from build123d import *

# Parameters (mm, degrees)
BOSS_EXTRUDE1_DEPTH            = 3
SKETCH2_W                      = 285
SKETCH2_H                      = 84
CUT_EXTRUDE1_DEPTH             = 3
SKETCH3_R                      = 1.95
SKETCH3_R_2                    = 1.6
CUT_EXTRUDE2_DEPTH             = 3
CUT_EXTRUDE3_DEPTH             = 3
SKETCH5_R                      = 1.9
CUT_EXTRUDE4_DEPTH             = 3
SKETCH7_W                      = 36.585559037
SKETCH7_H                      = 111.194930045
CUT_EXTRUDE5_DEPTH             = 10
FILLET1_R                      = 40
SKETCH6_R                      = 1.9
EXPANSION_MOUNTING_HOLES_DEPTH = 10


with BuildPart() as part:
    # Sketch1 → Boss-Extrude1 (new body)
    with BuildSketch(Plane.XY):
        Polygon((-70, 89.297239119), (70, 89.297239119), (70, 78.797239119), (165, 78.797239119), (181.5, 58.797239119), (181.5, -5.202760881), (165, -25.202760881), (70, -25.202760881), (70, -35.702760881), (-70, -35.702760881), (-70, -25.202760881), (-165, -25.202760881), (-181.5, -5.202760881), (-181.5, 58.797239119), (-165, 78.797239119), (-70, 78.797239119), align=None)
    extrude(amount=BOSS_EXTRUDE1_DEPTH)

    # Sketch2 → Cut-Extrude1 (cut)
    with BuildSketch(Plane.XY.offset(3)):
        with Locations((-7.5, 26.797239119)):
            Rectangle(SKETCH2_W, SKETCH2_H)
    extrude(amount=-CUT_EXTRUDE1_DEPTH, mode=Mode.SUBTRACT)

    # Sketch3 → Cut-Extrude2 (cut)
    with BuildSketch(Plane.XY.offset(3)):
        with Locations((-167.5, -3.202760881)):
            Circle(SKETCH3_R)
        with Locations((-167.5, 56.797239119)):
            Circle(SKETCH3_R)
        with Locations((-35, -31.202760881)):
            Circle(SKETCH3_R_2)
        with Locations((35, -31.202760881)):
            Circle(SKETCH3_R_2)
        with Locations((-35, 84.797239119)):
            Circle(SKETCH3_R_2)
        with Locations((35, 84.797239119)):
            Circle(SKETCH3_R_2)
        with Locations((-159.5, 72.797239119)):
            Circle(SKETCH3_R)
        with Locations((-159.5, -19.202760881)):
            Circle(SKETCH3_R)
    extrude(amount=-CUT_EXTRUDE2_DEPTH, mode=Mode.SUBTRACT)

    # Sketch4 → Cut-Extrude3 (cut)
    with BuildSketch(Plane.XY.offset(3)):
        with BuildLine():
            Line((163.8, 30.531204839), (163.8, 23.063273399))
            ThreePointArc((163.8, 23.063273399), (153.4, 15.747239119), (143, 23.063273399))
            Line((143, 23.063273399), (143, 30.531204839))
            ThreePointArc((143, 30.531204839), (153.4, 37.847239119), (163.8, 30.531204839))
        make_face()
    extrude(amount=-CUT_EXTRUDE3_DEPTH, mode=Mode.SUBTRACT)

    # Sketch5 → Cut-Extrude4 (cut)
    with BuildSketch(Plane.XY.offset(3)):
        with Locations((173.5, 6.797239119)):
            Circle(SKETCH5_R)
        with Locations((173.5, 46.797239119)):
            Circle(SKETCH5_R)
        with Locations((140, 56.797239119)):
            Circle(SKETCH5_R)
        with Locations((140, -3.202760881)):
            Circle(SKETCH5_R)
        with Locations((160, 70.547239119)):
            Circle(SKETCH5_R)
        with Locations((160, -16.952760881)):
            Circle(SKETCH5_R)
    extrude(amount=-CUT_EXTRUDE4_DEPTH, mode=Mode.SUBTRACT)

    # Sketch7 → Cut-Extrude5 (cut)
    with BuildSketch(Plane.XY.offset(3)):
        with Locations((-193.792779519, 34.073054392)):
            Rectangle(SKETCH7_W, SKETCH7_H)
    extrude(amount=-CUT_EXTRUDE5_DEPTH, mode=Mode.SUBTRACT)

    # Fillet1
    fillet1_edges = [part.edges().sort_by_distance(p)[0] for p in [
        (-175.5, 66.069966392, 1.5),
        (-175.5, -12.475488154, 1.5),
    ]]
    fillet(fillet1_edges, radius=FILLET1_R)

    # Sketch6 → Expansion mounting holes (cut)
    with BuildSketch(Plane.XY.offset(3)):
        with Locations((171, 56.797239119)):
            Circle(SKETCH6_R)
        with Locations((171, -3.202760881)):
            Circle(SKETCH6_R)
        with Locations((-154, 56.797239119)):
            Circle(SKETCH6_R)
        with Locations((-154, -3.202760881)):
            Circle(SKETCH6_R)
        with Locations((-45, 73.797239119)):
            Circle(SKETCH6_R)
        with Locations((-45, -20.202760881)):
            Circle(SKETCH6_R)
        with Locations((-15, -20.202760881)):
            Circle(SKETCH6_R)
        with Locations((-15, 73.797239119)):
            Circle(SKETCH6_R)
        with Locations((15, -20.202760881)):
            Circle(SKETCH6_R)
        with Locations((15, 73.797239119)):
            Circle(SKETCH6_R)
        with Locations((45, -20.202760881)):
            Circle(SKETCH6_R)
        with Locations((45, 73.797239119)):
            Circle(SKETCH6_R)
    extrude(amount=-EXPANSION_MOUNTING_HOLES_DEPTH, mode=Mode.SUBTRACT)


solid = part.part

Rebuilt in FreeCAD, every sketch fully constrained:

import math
import FreeCAD as App
import Part
import Sketcher
Q = App.Units.Quantity


def edges_at(feature, points):
    """Names of the edges that pass closest to the given points."""
    edges = feature.Shape.Edges
    near = lambda p: min(range(len(edges)), key=lambda i: edges[i].distToShape(Part.Vertex(*p))[0])
    return sorted({f"Edge{near(p) + 1}" for p in points})

doc = App.newDocument("Part")
body = doc.addObject("PartDesign::Body", "Body")

# Sketch on XY plane
sketch1 = body.newObject("Sketcher::SketchObject", "Sketch")
sketch1.AttachmentSupport = (doc.getObject("XY_Plane"), [""])
sketch1.MapMode = "FlatFace"
sketch1.addGeometry(Part.LineSegment(App.Vector(70, 89, 0), App.Vector(-70, 89, 0)), False)
sketch1.addGeometry(Part.LineSegment(App.Vector(-70, 89, 0), App.Vector(-70, 79, 0)), False)
sketch1.addGeometry(Part.LineSegment(App.Vector(-70, 79, 0), App.Vector(-165, 79, 0)), False)
sketch1.addGeometry(Part.LineSegment(App.Vector(-165, 79, 0), App.Vector(-182, 59, 0)), False)
sketch1.addGeometry(Part.LineSegment(App.Vector(-182, 59, 0), App.Vector(-182, -5, 0)), False)
sketch1.addGeometry(Part.LineSegment(App.Vector(-182, -5, 0), App.Vector(-165, -25, 0)), False)
sketch1.addGeometry(Part.LineSegment(App.Vector(-165, -25, 0), App.Vector(-70, -25, 0)), False)
sketch1.addGeometry(Part.LineSegment(App.Vector(-70, -25, 0), App.Vector(-70, -36, 0)), False)
sketch1.addGeometry(Part.LineSegment(App.Vector(-70, -36, 0), App.Vector(70, -36, 0)), False)
sketch1.addGeometry(Part.LineSegment(App.Vector(70, -36, 0), App.Vector(70, -25, 0)), False)
sketch1.addGeometry(Part.LineSegment(App.Vector(70, -25, 0), App.Vector(165, -25, 0)), False)
sketch1.addGeometry(Part.LineSegment(App.Vector(165, -25, 0), App.Vector(182, -5, 0)), False)
sketch1.addGeometry(Part.LineSegment(App.Vector(182, -5, 0), App.Vector(182, 59, 0)), False)
sketch1.addGeometry(Part.LineSegment(App.Vector(182, 59, 0), App.Vector(165, 79, 0)), False)
sketch1.addGeometry(Part.LineSegment(App.Vector(165, 79, 0), App.Vector(70, 79, 0)), False)
sketch1.addGeometry(Part.LineSegment(App.Vector(70, 79, 0), App.Vector(70, 89, 0)), False)
sketch1.addConstraint(Sketcher.Constraint("Coincident", 0, 2, 1, 1))
sketch1.addConstraint(Sketcher.Constraint("Coincident", 1, 2, 2, 1))
sketch1.addConstraint(Sketcher.Constraint("Coincident", 2, 2, 3, 1))
sketch1.addConstraint(Sketcher.Constraint("Coincident", 3, 2, 4, 1))
sketch1.addConstraint(Sketcher.Constraint("Coincident", 4, 2, 5, 1))
sketch1.addConstraint(Sketcher.Constraint("Coincident", 5, 2, 6, 1))
sketch1.addConstraint(Sketcher.Constraint("Coincident", 6, 2, 7, 1))
sketch1.addConstraint(Sketcher.Constraint("Coincident", 7, 2, 8, 1))
sketch1.addConstraint(Sketcher.Constraint("Coincident", 8, 2, 9, 1))
sketch1.addConstraint(Sketcher.Constraint("Coincident", 9, 2, 10, 1))
sketch1.addConstraint(Sketcher.Constraint("Coincident", 10, 2, 11, 1))
sketch1.addConstraint(Sketcher.Constraint("Coincident", 11, 2, 12, 1))
sketch1.addConstraint(Sketcher.Constraint("Coincident", 12, 2, 13, 1))
sketch1.addConstraint(Sketcher.Constraint("Coincident", 13, 2, 14, 1))
sketch1.addConstraint(Sketcher.Constraint("Coincident", 14, 2, 15, 1))
sketch1.addConstraint(Sketcher.Constraint("Coincident", 15, 2, 0, 1))
sketch1.addConstraint(Sketcher.Constraint("Horizontal", 0))
sketch1.addConstraint(Sketcher.Constraint("Vertical", 1))
sketch1.addConstraint(Sketcher.Constraint("Horizontal", 2))
sketch1.addConstraint(Sketcher.Constraint("Vertical", 4))
sketch1.addConstraint(Sketcher.Constraint("Horizontal", 6))
sketch1.addConstraint(Sketcher.Constraint("Vertical", 7))
sketch1.addConstraint(Sketcher.Constraint("Horizontal", 8))
sketch1.addConstraint(Sketcher.Constraint("Vertical", 9))
sketch1.addConstraint(Sketcher.Constraint("Horizontal", 10))
sketch1.addConstraint(Sketcher.Constraint("Vertical", 12))
sketch1.addConstraint(Sketcher.Constraint("Horizontal", 14))
sketch1.addConstraint(Sketcher.Constraint("Vertical", 15))
sketch1.addConstraint(Sketcher.Constraint("Symmetric", 6, 2, 9, 2, -2))
sketch1.addConstraint(Sketcher.Constraint("Symmetric", 4, 2, 11, 2, -2))
sketch1.addConstraint(Sketcher.Constraint("Symmetric", 2, 2, 13, 2, -2))
sketch1.addConstraint(Sketcher.Constraint("Parallel", 3, 11))
sketch1.addConstraint(Sketcher.Constraint("Parallel", 5, 13))
sketch1.addConstraint(Sketcher.Constraint("Horizontal", 3, 2, 12, 2))
sketch1.addConstraint(Sketcher.Constraint("Vertical", 2, 2, 5, 2))
sketch1.addConstraint(Sketcher.Constraint("Vertical", 1, 2, 6, 2))
sketch1.addConstraint(Sketcher.Constraint("Vertical", 9, 2, 14, 2))
sketch1.addConstraint(Sketcher.Constraint("Equal", 1, 7))
sketch1.addConstraint(Sketcher.Constraint("DistanceX", 0, 2, 0, 1, Q("140 mm")))
sketch1.addConstraint(Sketcher.Constraint("DistanceX", 2, 2, 2, 1, Q("95 mm")))
sketch1.addConstraint(Sketcher.Constraint("DistanceY", 4, 2, 4, 1, Q("64 mm")))
sketch1.addConstraint(Sketcher.Constraint("DistanceY", 1, 2, 1, 1, Q("10.5 mm")))
sketch1.addConstraint(Sketcher.Constraint("DistanceY", 3, 2, 2, 2, Q("20 mm")))
sketch1.addConstraint(Sketcher.Constraint("DistanceX", 3, 2, -1, 1, Q("181.5 mm")))
sketch1.addConstraint(Sketcher.Constraint("DistanceY", -1, 1, 0, 2, Q("89.297239 mm")))
pad1 = body.newObject("PartDesign::Pad", "Pad")
pad1.Profile = sketch1
pad1.Length = 3

# Sketch on XY plane
sketch2 = body.newObject("Sketcher::SketchObject", "Sketch001")
sketch2.AttachmentSupport = (doc.getObject("XY_Plane"), [""])
sketch2.MapMode = "FlatFace"
sketch2.AttachmentOffset = App.Placement(App.Vector(0, 0, 3), App.Rotation())
sketch2.addGeometry(Part.LineSegment(App.Vector(-150, 69, 0), App.Vector(-150, -15, 0)), False)
sketch2.addGeometry(Part.LineSegment(App.Vector(-150, -15, 0), App.Vector(135, -15, 0)), False)
sketch2.addGeometry(Part.LineSegment(App.Vector(135, -15, 0), App.Vector(135, 69, 0)), False)
sketch2.addGeometry(Part.LineSegment(App.Vector(135, 69, 0), App.Vector(-150, 69, 0)), False)
sketch2.addConstraint(Sketcher.Constraint("Coincident", 0, 2, 1, 1))
sketch2.addConstraint(Sketcher.Constraint("Coincident", 1, 2, 2, 1))
sketch2.addConstraint(Sketcher.Constraint("Coincident", 2, 2, 3, 1))
sketch2.addConstraint(Sketcher.Constraint("Coincident", 3, 2, 0, 1))
sketch2.addConstraint(Sketcher.Constraint("Vertical", 0))
sketch2.addConstraint(Sketcher.Constraint("Horizontal", 1))
sketch2.addConstraint(Sketcher.Constraint("Vertical", 2))
sketch2.addConstraint(Sketcher.Constraint("Horizontal", 3))
sketch2.addConstraint(Sketcher.Constraint("DistanceX", 1, 1, 1, 2, Q("285 mm")))
sketch2.addConstraint(Sketcher.Constraint("DistanceY", 0, 2, 0, 1, Q("84 mm")))
sketch2.addConstraint(Sketcher.Constraint("DistanceX", 0, 2, -1, 1, Q("150 mm")))
sketch2.addConstraint(Sketcher.Constraint("DistanceY", 0, 2, -1, 1, Q("15.202761 mm")))
pocket1 = body.newObject("PartDesign::Pocket", "Pocket")
pocket1.Profile = sketch2
pocket1.Length = 3

# Sketch on XY plane
sketch3 = body.newObject("Sketcher::SketchObject", "Sketch002")
sketch3.AttachmentSupport = (doc.getObject("XY_Plane"), [""])
sketch3.MapMode = "FlatFace"
sketch3.AttachmentOffset = App.Placement(App.Vector(0, 0, 3), App.Rotation())
sketch3.addGeometry(Part.Circle(App.Vector(-167.5, -3.2, 0), App.Vector(0, 0, 1), 1.9), False)
sketch3.addGeometry(Part.Circle(App.Vector(-167.5, 56.8, 0), App.Vector(0, 0, 1), 1.9), False)
sketch3.addGeometry(Part.Circle(App.Vector(-35, -31.2, 0), App.Vector(0, 0, 1), 1.6), False)
sketch3.addGeometry(Part.Circle(App.Vector(35, -31.2, 0), App.Vector(0, 0, 1), 1.6), False)
sketch3.addGeometry(Part.Circle(App.Vector(-35, 84.8, 0), App.Vector(0, 0, 1), 1.6), False)
sketch3.addGeometry(Part.Circle(App.Vector(35, 84.8, 0), App.Vector(0, 0, 1), 1.6), False)
sketch3.addGeometry(Part.Circle(App.Vector(-159.5, 72.8, 0), App.Vector(0, 0, 1), 1.9), False)
sketch3.addGeometry(Part.Circle(App.Vector(-159.5, -19.2, 0), App.Vector(0, 0, 1), 1.9), False)
sketch3.addConstraint(Sketcher.Constraint("Equal", 0, 1))
sketch3.addConstraint(Sketcher.Constraint("Equal", 2, 3))
sketch3.addConstraint(Sketcher.Constraint("Equal", 3, 4))
sketch3.addConstraint(Sketcher.Constraint("Equal", 4, 5))
sketch3.addConstraint(Sketcher.Constraint("Equal", 1, 6))
sketch3.addConstraint(Sketcher.Constraint("Equal", 6, 7))
sketch3.addConstraint(Sketcher.Constraint("Symmetric", 2, 3, 3, 3, -2))
sketch3.addConstraint(Sketcher.Constraint("Symmetric", 4, 3, 5, 3, -2))
sketch3.addConstraint(Sketcher.Constraint("Vertical", 0, 3, 1, 3))
sketch3.addConstraint(Sketcher.Constraint("Vertical", 2, 3, 4, 3))
sketch3.addConstraint(Sketcher.Constraint("Vertical", 6, 3, 7, 3))
sketch3.addConstraint(Sketcher.Constraint("Diameter", 0, Q("3.9 mm")))
sketch3.addConstraint(Sketcher.Constraint("Diameter", 2, Q("3.2 mm")))
sketch3.addConstraint(Sketcher.Constraint("DistanceX", 2, 3, -1, 1, Q("35 mm")))
sketch3.addConstraint(Sketcher.Constraint("DistanceY", 0, 3, 1, 3, Q("60 mm")))
sketch3.addConstraint(Sketcher.Constraint("DistanceY", 2, 3, 0, 3, Q("28 mm")))
sketch3.addConstraint(Sketcher.Constraint("DistanceY", 2, 3, 4, 3, Q("116 mm")))
sketch3.addConstraint(Sketcher.Constraint("DistanceX", 1, 3, 6, 3, Q("8 mm")))
sketch3.addConstraint(Sketcher.Constraint("DistanceY", 1, 3, 6, 3, Q("16 mm")))
sketch3.addConstraint(Sketcher.Constraint("DistanceY", 7, 3, 0, 3, Q("16 mm")))
sketch3.addConstraint(Sketcher.Constraint("DistanceX", 0, 3, -1, 1, Q("167.5 mm")))
sketch3.addConstraint(Sketcher.Constraint("DistanceY", 0, 3, -1, 1, Q("3.202761 mm")))
pocket2 = body.newObject("PartDesign::Pocket", "Pocket001")
pocket2.Profile = sketch3
pocket2.Length = 3

# Sketch on XY plane
sketch4 = body.newObject("Sketcher::SketchObject", "Sketch003")
sketch4.AttachmentSupport = (doc.getObject("XY_Plane"), [""])
sketch4.MapMode = "FlatFace"
sketch4.AttachmentOffset = App.Placement(App.Vector(0, 0, 3), App.Rotation())
sketch4.addGeometry(Part.LineSegment(App.Vector(164, 23, 0), App.Vector(164, 31, 0)), False)
sketch4.addGeometry(Part.ArcOfCircle(Part.Circle(App.Vector(153, 27, 0), App.Vector(0, 0, 1), 11), math.radians(20), math.radians(160)), False)
sketch4.addGeometry(Part.LineSegment(App.Vector(143, 31, 0), App.Vector(143, 23, 0)), False)
sketch4.addGeometry(Part.ArcOfCircle(Part.Circle(App.Vector(153, 27, 0), App.Vector(0, 0, 1), 11), math.radians(-160), math.radians(-20)), False)
sketch4.addConstraint(Sketcher.Constraint("Coincident", 0, 2, 1, 1))
sketch4.addConstraint(Sketcher.Constraint("Coincident", 1, 2, 2, 1))
sketch4.addConstraint(Sketcher.Constraint("Coincident", 2, 2, 3, 1))
sketch4.addConstraint(Sketcher.Constraint("Coincident", 3, 2, 0, 1))
sketch4.addConstraint(Sketcher.Constraint("Vertical", 0))
sketch4.addConstraint(Sketcher.Constraint("Vertical", 2))
sketch4.addConstraint(Sketcher.Constraint("Coincident", 3, 3, 1, 3))
sketch4.addConstraint(Sketcher.Constraint("Equal", 1, 3))
sketch4.addConstraint(Sketcher.Constraint("Horizontal", 0, 2, 1, 2))
sketch4.addConstraint(Sketcher.Constraint("Radius", 1, Q("11.05 mm")))
sketch4.addConstraint(Sketcher.Constraint("DistanceX", -1, 1, 1, 2, Q("143 mm")))
sketch4.addConstraint(Sketcher.Constraint("DistanceX", -1, 1, 1, 3, Q("153.4 mm")))
sketch4.addConstraint(Sketcher.Constraint("DistanceY", -1, 1, 1, 3, Q("26.797239 mm")))
pocket3 = body.newObject("PartDesign::Pocket", "Pocket002")
pocket3.Profile = sketch4
pocket3.Length = 3

# Sketch on XY plane
sketch5 = body.newObject("Sketcher::SketchObject", "Sketch004")
sketch5.AttachmentSupport = (doc.getObject("XY_Plane"), [""])
sketch5.MapMode = "FlatFace"
sketch5.AttachmentOffset = App.Placement(App.Vector(0, 0, 3), App.Rotation())
sketch5.addGeometry(Part.Circle(App.Vector(173.5, 6.8, 0), App.Vector(0, 0, 1), 1.9), False)
sketch5.addGeometry(Part.Circle(App.Vector(173.5, 46.8, 0), App.Vector(0, 0, 1), 1.9), False)
sketch5.addGeometry(Part.Circle(App.Vector(140, 56.8, 0), App.Vector(0, 0, 1), 1.9), False)
sketch5.addGeometry(Part.Circle(App.Vector(140, -3.2, 0), App.Vector(0, 0, 1), 1.9), False)
sketch5.addGeometry(Part.Circle(App.Vector(160, 70.5, 0), App.Vector(0, 0, 1), 1.9), False)
sketch5.addGeometry(Part.Circle(App.Vector(160, -17, 0), App.Vector(0, 0, 1), 1.9), False)
sketch5.addConstraint(Sketcher.Constraint("Equal", 0, 1))
sketch5.addConstraint(Sketcher.Constraint("Equal", 1, 2))
sketch5.addConstraint(Sketcher.Constraint("Equal", 2, 3))
sketch5.addConstraint(Sketcher.Constraint("Equal", 3, 4))
sketch5.addConstraint(Sketcher.Constraint("Equal", 4, 5))
sketch5.addConstraint(Sketcher.Constraint("Vertical", 0, 3, 1, 3))
sketch5.addConstraint(Sketcher.Constraint("Vertical", 2, 3, 3, 3))
sketch5.addConstraint(Sketcher.Constraint("Vertical", 4, 3, 5, 3))
sketch5.addConstraint(Sketcher.Constraint("Diameter", 0, Q("3.8 mm")))
sketch5.addConstraint(Sketcher.Constraint("DistanceX", -1, 1, 2, 3, Q("140 mm")))
sketch5.addConstraint(Sketcher.Constraint("DistanceX", -1, 1, 4, 3, Q("160 mm")))
sketch5.addConstraint(Sketcher.Constraint("DistanceY", 0, 3, 1, 3, Q("40 mm")))
sketch5.addConstraint(Sketcher.Constraint("DistanceY", 1, 3, 2, 3, Q("10 mm")))
sketch5.addConstraint(Sketcher.Constraint("DistanceY", 3, 3, 0, 3, Q("10 mm")))
sketch5.addConstraint(Sketcher.Constraint("DistanceX", -1, 1, 0, 3, Q("173.5 mm")))
sketch5.addConstraint(Sketcher.Constraint("DistanceY", 5, 3, 4, 3, Q("87.5 mm")))
sketch5.addConstraint(Sketcher.Constraint("DistanceY", 2, 3, 4, 3, Q("13.75 mm")))
sketch5.addConstraint(Sketcher.Constraint("DistanceY", -1, 1, 0, 3, Q("6.797239 mm")))
pocket4 = body.newObject("PartDesign::Pocket", "Pocket003")
pocket4.Profile = sketch5
pocket4.Length = 3

# Sketch on XY plane
sketch6 = body.newObject("Sketcher::SketchObject", "Sketch005")
sketch6.AttachmentSupport = (doc.getObject("XY_Plane"), [""])
sketch6.MapMode = "FlatFace"
sketch6.AttachmentOffset = App.Placement(App.Vector(0, 0, 3), App.Rotation())
sketch6.addGeometry(Part.LineSegment(App.Vector(-212, 90, 0), App.Vector(-212, -22, 0)), False)
sketch6.addGeometry(Part.LineSegment(App.Vector(-212, -22, 0), App.Vector(-176, -22, 0)), False)
sketch6.addGeometry(Part.LineSegment(App.Vector(-176, -22, 0), App.Vector(-176, 90, 0)), False)
sketch6.addGeometry(Part.LineSegment(App.Vector(-176, 90, 0), App.Vector(-212, 90, 0)), False)
sketch6.addConstraint(Sketcher.Constraint("Coincident", 0, 2, 1, 1))
sketch6.addConstraint(Sketcher.Constraint("Coincident", 1, 2, 2, 1))
sketch6.addConstraint(Sketcher.Constraint("Coincident", 2, 2, 3, 1))
sketch6.addConstraint(Sketcher.Constraint("Coincident", 3, 2, 0, 1))
sketch6.addConstraint(Sketcher.Constraint("Vertical", 0))
sketch6.addConstraint(Sketcher.Constraint("Horizontal", 1))
sketch6.addConstraint(Sketcher.Constraint("Vertical", 2))
sketch6.addConstraint(Sketcher.Constraint("Horizontal", 3))
sketch6.addConstraint(Sketcher.Constraint("DistanceX", 1, 2, -1, 1, Q("175.5 mm")))
sketch6.addConstraint(Sketcher.Constraint("DistanceX", 1, 1, 1, 2, Q("36.585559 mm")))
sketch6.addConstraint(Sketcher.Constraint("DistanceY", 0, 2, 0, 1, Q("111.19493 mm")))
sketch6.addConstraint(Sketcher.Constraint("DistanceY", 0, 2, -1, 1, Q("21.524411 mm")))
pocket5 = body.newObject("PartDesign::Pocket", "Pocket004")
pocket5.Profile = sketch6
pocket5.Length = 10
doc.recompute()

fillet = body.newObject("PartDesign::Fillet", "Fillet")
fillet.Base = (pocket5, edges_at(pocket5, [(-175.5, 66.07, 1.5), (-175.5, -12.475, 1.5)]))
fillet.Radius = 40

# Sketch on XY plane
sketch7 = body.newObject("Sketcher::SketchObject", "Sketch006")
sketch7.AttachmentSupport = (doc.getObject("XY_Plane"), [""])
sketch7.MapMode = "FlatFace"
sketch7.AttachmentOffset = App.Placement(App.Vector(0, 0, 3), App.Rotation())
sketch7.addGeometry(Part.Circle(App.Vector(171, 56.8, 0), App.Vector(0, 0, 1), 1.9), False)
sketch7.addGeometry(Part.Circle(App.Vector(171, -3.2, 0), App.Vector(0, 0, 1), 1.9), False)
sketch7.addGeometry(Part.Circle(App.Vector(-154, 56.8, 0), App.Vector(0, 0, 1), 1.9), False)
sketch7.addGeometry(Part.Circle(App.Vector(-154, -3.2, 0), App.Vector(0, 0, 1), 1.9), False)
sketch7.addGeometry(Part.Circle(App.Vector(-45, 73.8, 0), App.Vector(0, 0, 1), 1.9), False)
sketch7.addGeometry(Part.Circle(App.Vector(-45, -20.2, 0), App.Vector(0, 0, 1), 1.9), False)
sketch7.addGeometry(Part.Circle(App.Vector(-15, -20.2, 0), App.Vector(0, 0, 1), 1.9), False)
sketch7.addGeometry(Part.Circle(App.Vector(-15, 73.8, 0), App.Vector(0, 0, 1), 1.9), False)
sketch7.addGeometry(Part.Circle(App.Vector(15, -20.2, 0), App.Vector(0, 0, 1), 1.9), False)
sketch7.addGeometry(Part.Circle(App.Vector(15, 73.8, 0), App.Vector(0, 0, 1), 1.9), False)
sketch7.addGeometry(Part.Circle(App.Vector(45, -20.2, 0), App.Vector(0, 0, 1), 1.9), False)
sketch7.addGeometry(Part.Circle(App.Vector(45, 73.8, 0), App.Vector(0, 0, 1), 1.9), False)
sketch7.addConstraint(Sketcher.Constraint("Equal", 0, 1))
sketch7.addConstraint(Sketcher.Constraint("Equal", 1, 2))
sketch7.addConstraint(Sketcher.Constraint("Equal", 2, 3))
sketch7.addConstraint(Sketcher.Constraint("Equal", 3, 4))
sketch7.addConstraint(Sketcher.Constraint("Equal", 4, 5))
sketch7.addConstraint(Sketcher.Constraint("Equal", 5, 6))
sketch7.addConstraint(Sketcher.Constraint("Equal", 6, 7))
sketch7.addConstraint(Sketcher.Constraint("Equal", 7, 8))
sketch7.addConstraint(Sketcher.Constraint("Equal", 8, 9))
sketch7.addConstraint(Sketcher.Constraint("Equal", 9, 10))
sketch7.addConstraint(Sketcher.Constraint("Equal", 10, 11))
sketch7.addConstraint(Sketcher.Constraint("Symmetric", 6, 3, 8, 3, -2))
sketch7.addConstraint(Sketcher.Constraint("Symmetric", 7, 3, 9, 3, -2))
sketch7.addConstraint(Sketcher.Constraint("Symmetric", 5, 3, 10, 3, -2))
sketch7.addConstraint(Sketcher.Constraint("Symmetric", 4, 3, 11, 3, -2))
sketch7.addConstraint(Sketcher.Constraint("Horizontal", 0, 3, 2, 3))
sketch7.addConstraint(Sketcher.Constraint("Horizontal", 1, 3, 3, 3))
sketch7.addConstraint(Sketcher.Constraint("Horizontal", 5, 3, 6, 3))
sketch7.addConstraint(Sketcher.Constraint("Horizontal", 4, 3, 7, 3))
sketch7.addConstraint(Sketcher.Constraint("Vertical", 0, 3, 1, 3))
sketch7.addConstraint(Sketcher.Constraint("Vertical", 2, 3, 3, 3))
sketch7.addConstraint(Sketcher.Constraint("Vertical", 4, 3, 5, 3))
sketch7.addConstraint(Sketcher.Constraint("Vertical", 6, 3, 7, 3))
sketch7.addConstraint(Sketcher.Constraint("Diameter", 0, Q("3.8 mm")))
sketch7.addConstraint(Sketcher.Constraint("DistanceX", -1, 1, 0, 3, Q("171 mm")))
sketch7.addConstraint(Sketcher.Constraint("DistanceX", 2, 3, -1, 1, Q("154 mm")))
sketch7.addConstraint(Sketcher.Constraint("DistanceX", 4, 3, -1, 1, Q("45 mm")))
sketch7.addConstraint(Sketcher.Constraint("DistanceX", 6, 3, -1, 1, Q("15 mm")))
sketch7.addConstraint(Sketcher.Constraint("DistanceY", 1, 3, 0, 3, Q("60 mm")))
sketch7.addConstraint(Sketcher.Constraint("DistanceY", 2, 3, 4, 3, Q("17 mm")))
sketch7.addConstraint(Sketcher.Constraint("DistanceY", 5, 3, 4, 3, Q("94 mm")))
sketch7.addConstraint(Sketcher.Constraint("DistanceY", -1, 1, 0, 3, Q("56.797239 mm")))
pocket6 = body.newObject("PartDesign::Pocket", "Pocket005")
pocket6.Profile = sketch7
pocket6.Length = 10

doc.recompute()
